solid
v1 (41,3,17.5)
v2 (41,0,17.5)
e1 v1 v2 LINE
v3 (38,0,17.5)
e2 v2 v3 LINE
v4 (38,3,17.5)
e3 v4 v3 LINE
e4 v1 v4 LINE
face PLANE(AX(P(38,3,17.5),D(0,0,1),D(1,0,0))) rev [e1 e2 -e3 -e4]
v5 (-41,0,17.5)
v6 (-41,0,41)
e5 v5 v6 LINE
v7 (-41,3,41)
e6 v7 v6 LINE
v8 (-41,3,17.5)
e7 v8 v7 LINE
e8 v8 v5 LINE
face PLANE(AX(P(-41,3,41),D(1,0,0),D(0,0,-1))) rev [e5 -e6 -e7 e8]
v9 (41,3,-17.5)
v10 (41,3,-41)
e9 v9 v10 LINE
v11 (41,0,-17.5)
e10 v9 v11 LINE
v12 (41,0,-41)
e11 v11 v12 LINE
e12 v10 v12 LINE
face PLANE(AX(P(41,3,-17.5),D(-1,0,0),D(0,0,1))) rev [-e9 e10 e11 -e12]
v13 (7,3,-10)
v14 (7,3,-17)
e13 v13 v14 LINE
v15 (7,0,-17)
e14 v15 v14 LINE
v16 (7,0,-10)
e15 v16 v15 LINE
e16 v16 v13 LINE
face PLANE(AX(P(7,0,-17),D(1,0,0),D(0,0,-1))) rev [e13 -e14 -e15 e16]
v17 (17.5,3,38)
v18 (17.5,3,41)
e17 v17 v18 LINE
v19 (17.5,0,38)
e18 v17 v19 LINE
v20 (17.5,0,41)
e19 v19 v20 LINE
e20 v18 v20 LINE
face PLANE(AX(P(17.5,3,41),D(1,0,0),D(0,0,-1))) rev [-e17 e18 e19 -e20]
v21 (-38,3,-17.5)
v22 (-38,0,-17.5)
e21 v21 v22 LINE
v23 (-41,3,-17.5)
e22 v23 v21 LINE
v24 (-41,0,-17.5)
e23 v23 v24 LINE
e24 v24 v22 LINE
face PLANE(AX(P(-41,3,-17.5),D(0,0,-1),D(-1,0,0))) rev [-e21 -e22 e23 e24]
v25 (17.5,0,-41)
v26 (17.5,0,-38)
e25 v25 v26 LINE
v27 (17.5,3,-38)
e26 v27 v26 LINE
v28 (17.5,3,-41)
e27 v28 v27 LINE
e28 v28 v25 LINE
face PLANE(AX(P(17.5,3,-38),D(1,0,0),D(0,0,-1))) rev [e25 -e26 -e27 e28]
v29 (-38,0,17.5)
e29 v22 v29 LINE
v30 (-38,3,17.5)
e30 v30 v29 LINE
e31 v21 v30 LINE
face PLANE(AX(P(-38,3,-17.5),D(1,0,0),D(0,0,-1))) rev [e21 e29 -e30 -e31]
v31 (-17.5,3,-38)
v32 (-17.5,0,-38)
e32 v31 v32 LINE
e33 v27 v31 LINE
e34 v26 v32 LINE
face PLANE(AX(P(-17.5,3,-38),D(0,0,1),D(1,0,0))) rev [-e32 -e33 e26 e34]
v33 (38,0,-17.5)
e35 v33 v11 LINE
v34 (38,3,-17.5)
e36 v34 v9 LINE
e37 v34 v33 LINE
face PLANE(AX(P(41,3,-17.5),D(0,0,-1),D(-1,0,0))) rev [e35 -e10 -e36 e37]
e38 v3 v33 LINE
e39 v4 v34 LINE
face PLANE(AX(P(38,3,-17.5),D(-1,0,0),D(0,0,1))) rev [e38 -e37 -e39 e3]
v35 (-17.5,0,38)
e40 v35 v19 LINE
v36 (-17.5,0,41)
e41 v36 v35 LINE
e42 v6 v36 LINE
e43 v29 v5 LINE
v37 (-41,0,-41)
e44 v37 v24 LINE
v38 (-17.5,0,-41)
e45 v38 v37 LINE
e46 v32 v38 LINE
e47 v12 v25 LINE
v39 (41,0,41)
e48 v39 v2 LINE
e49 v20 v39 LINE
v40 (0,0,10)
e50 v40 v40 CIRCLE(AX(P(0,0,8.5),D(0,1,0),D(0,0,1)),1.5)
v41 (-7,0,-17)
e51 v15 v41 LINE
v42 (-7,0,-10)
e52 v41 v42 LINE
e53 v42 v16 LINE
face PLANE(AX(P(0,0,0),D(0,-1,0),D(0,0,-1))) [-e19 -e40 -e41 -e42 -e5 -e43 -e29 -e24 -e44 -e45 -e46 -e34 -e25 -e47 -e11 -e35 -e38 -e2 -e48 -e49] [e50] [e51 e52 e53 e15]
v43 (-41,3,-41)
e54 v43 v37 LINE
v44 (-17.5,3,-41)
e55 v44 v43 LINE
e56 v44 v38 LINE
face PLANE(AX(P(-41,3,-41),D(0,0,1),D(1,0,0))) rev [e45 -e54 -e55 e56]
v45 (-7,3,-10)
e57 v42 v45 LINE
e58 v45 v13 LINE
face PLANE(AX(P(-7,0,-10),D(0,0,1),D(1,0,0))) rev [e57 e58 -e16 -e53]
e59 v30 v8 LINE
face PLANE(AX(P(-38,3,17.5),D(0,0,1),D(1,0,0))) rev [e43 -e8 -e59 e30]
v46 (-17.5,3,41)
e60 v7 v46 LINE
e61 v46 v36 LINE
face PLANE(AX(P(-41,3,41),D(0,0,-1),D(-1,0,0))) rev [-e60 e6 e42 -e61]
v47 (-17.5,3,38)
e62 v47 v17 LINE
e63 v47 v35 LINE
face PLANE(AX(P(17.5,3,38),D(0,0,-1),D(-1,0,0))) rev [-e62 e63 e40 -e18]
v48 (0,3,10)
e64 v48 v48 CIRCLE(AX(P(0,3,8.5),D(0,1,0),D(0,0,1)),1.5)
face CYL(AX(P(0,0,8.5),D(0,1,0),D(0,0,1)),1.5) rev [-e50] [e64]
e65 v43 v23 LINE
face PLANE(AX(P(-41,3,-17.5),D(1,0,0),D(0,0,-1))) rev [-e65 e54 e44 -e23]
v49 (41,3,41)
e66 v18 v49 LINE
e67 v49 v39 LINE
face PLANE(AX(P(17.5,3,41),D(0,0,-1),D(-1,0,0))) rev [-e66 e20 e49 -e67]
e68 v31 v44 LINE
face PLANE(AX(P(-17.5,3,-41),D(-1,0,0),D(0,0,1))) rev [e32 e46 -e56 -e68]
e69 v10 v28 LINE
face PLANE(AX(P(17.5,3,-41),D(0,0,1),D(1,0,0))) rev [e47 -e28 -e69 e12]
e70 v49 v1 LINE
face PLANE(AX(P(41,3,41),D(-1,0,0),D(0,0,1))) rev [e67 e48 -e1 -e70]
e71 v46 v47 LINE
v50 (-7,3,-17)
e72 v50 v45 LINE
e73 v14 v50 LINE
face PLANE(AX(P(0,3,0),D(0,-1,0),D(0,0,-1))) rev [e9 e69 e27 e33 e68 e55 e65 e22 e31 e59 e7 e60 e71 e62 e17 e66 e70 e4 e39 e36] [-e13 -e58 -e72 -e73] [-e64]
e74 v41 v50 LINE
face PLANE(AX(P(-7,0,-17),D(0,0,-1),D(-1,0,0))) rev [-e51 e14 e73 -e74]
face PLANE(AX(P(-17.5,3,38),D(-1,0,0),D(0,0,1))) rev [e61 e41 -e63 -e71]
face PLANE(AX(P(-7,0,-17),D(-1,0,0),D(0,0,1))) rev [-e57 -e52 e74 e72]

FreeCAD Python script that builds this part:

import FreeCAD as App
import Part
import Sketcher
from FreeCAD import Vector
Q = App.Units.Quantity

doc = App.newDocument("Part")
body = doc.addObject("PartDesign::Body", "Body")

# Sketch on XZ plane
sketch1 = body.newObject("Sketcher::SketchObject", "Sketch")
sketch1.AttachmentSupport = (doc.getObject("XZ_Plane"), [""])
sketch1.MapMode = "FlatFace"
sketch1.addGeometry([
    Part.LineSegment(Vector(-41, 41, 0), Vector(-17.5, 41, 0)),  # 0
    Part.LineSegment(Vector(-17.5, 41, 0), Vector(-17.5, 38, 0)),  # 1
    Part.LineSegment(Vector(-17.5, 38, 0), Vector(17.5, 38, 0)),  # 2
    Part.LineSegment(Vector(17.5, 38, 0), Vector(17.5, 41, 0)),  # 3
    Part.LineSegment(Vector(17.5, 41, 0), Vector(41, 41, 0)),  # 4
    Part.LineSegment(Vector(41, 41, 0), Vector(41, 17.5, 0)),  # 5
    Part.LineSegment(Vector(41, 17.5, 0), Vector(38, 17.5, 0)),  # 6
    Part.LineSegment(Vector(38, 17.5, 0), Vector(38, -17.5, 0)),  # 7
    Part.LineSegment(Vector(38, -17.5, 0), Vector(41, -17.5, 0)),  # 8
    Part.LineSegment(Vector(41, -17.5, 0), Vector(41, -41, 0)),  # 9
    Part.LineSegment(Vector(41, -41, 0), Vector(17.5, -41, 0)),  # 10
    Part.LineSegment(Vector(17.5, -41, 0), Vector(17.5, -38, 0)),  # 11
    Part.LineSegment(Vector(17.5, -38, 0), Vector(-17.5, -38, 0)),  # 12
    Part.LineSegment(Vector(-17.5, -38, 0), Vector(-17.5, -41, 0)),  # 13
    Part.LineSegment(Vector(-17.5, -41, 0), Vector(-41, -41, 0)),  # 14
    Part.LineSegment(Vector(-41, -41, 0), Vector(-41, -17.5, 0)),  # 15
    Part.LineSegment(Vector(-41, -17.5, 0), Vector(-38, -17.5, 0)),  # 16
    Part.LineSegment(Vector(-38, -17.5, 0), Vector(-38, 17.5, 0)),  # 17
    Part.LineSegment(Vector(-38, 17.5, 0), Vector(-41, 17.5, 0)),  # 18
    Part.LineSegment(Vector(-41, 17.5, 0), Vector(-41, 41, 0)),  # 19
], False)
sketch1.addConstraint([
    Sketcher.Constraint("Coincident", 0, 2, 1, 1),
    Sketcher.Constraint("Coincident", 1, 2, 2, 1),
    Sketcher.Constraint("Coincident", 2, 2, 3, 1),
    Sketcher.Constraint("Coincident", 3, 2, 4, 1),
    Sketcher.Constraint("Coincident", 4, 2, 5, 1),
    Sketcher.Constraint("Coincident", 5, 2, 6, 1),
    Sketcher.Constraint("Coincident", 6, 2, 7, 1),
    Sketcher.Constraint("Coincident", 7, 2, 8, 1),
    Sketcher.Constraint("Coincident", 8, 2, 9, 1),
    Sketcher.Constraint("Coincident", 9, 2, 10, 1),
    Sketcher.Constraint("Coincident", 10, 2, 11, 1),
    Sketcher.Constraint("Coincident", 11, 2, 12, 1),
    Sketcher.Constraint("Coincident", 12, 2, 13, 1),
    Sketcher.Constraint("Coincident", 13, 2, 14, 1),
    Sketcher.Constraint("Coincident", 14, 2, 15, 1),
    Sketcher.Constraint("Coincident", 15, 2, 16, 1),
    Sketcher.Constraint("Coincident", 16, 2, 17, 1),
    Sketcher.Constraint("Coincident", 17, 2, 18, 1),
    Sketcher.Constraint("Coincident", 18, 2, 19, 1),
    Sketcher.Constraint("Coincident", 19, 2, 0, 1),
    Sketcher.Constraint("Horizontal", 0),
    Sketcher.Constraint("Vertical", 1),
    Sketcher.Constraint("Horizontal", 2),
    Sketcher.Constraint("Vertical", 3),
    Sketcher.Constraint("Horizontal", 4),
    Sketcher.Constraint("Vertical", 5),
    Sketcher.Constraint("Horizontal", 6),
    Sketcher.Constraint("Vertical", 7),
    Sketcher.Constraint("Horizontal", 8),
    Sketcher.Constraint("Vertical", 9),
    Sketcher.Constraint("Horizontal", 10),
    Sketcher.Constraint("Vertical", 11),
    Sketcher.Constraint("Horizontal", 12),
    Sketcher.Constraint("Vertical", 13),
    Sketcher.Constraint("Horizontal", 14),
    Sketcher.Constraint("Vertical", 15),
    Sketcher.Constraint("Horizontal", 16),
    Sketcher.Constraint("Vertical", 17),
    Sketcher.Constraint("Horizontal", 18),
    Sketcher.Constraint("Vertical", 19),
    Sketcher.Constraint("Symmetric", 0, 2, 10, 2, -1, 1),
    Sketcher.Constraint("Symmetric", 2, 2, 12, 2, -1, 1),
    Sketcher.Constraint("Symmetric", 4, 2, 14, 2, -1, 1),
    Sketcher.Constraint("Symmetric", 6, 2, 16, 2, -1, 1),
    Sketcher.Constraint("Symmetric", 8, 2, 18, 2, -1, 1),
    Sketcher.Constraint("Symmetric", 0, 2, 3, 2, -2),
    Sketcher.Constraint("Symmetric", 8, 2, 15, 2, -2),
    Sketcher.Constraint("Equal", 18, 1),
    Sketcher.Constraint("Equal", 14, 5),
    Sketcher.Constraint("Equal", 12, 7),
    Sketcher.Constraint("DistanceX", 2, 1, 2, 2, Q("35 mm")),
    Sketcher.Constraint("DistanceX", 6, 2, 6, 1, Q("3 mm")),
    Sketcher.Constraint("DistanceX", 0, 1, 0, 2, Q("23.5 mm")),
])
pad1 = body.newObject("PartDesign::Pad", "Pad")
pad1.Profile = sketch1
pad1.Length = 3
pad1.Reversed = True

# Sketch on XZ plane
sketch2 = body.newObject("Sketcher::SketchObject", "Sketch001")
sketch2.AttachmentSupport = (doc.getObject("XZ_Plane"), [""])
sketch2.MapMode = "FlatFace"
sketch2.AttachmentOffset = App.Placement(Vector(0, 0, -3), App.Rotation())
sketch2.addGeometry([
    Part.Circle(Vector(0, 8.5, 0), Vector(0, 0, 1), 1.5),  # 0
    Part.LineSegment(Vector(-7, -17, 0), Vector(-7, -10, 0)),  # 1
    Part.LineSegment(Vector(-7, -10, 0), Vector(7, -10, 0)),  # 2
    Part.LineSegment(Vector(7, -10, 0), Vector(7, -17, 0)),  # 3
    Part.LineSegment(Vector(7, -17, 0), Vector(-7, -17, 0)),  # 4
], False)
sketch2.addConstraint([
    Sketcher.Constraint("Coincident", 1, 2, 2, 1),
    Sketcher.Constraint("Coincident", 2, 2, 3, 1),
    Sketcher.Constraint("Coincident", 3, 2, 4, 1),
    Sketcher.Constraint("Coincident", 4, 2, 1, 1),
    Sketcher.Constraint("Vertical", 1),
    Sketcher.Constraint("Horizontal", 2),
    Sketcher.Constraint("Vertical", 3),
    Sketcher.Constraint("Horizontal", 4),
    Sketcher.Constraint("PointOnObject", 0, 3, -2),
    Sketcher.Constraint("Diameter", 0, Q("3 mm")),
    Sketcher.Constraint("DistanceX", 2, 1, 2, 2, Q("14 mm")),
    Sketcher.Constraint("DistanceY", 1, 1, 1, 2, Q("7 mm")),
    Sketcher.Constraint("DistanceX", 1, 2, -1, 1, Q("7 mm")),
    Sketcher.Constraint("DistanceY", 1, 2, -1, 1, Q("10 mm")),
    Sketcher.Constraint("DistanceY", -1, 1, 0, 3, Q("8.5 mm")),
])
pocket1 = body.newObject("PartDesign::Pocket", "Pocket")
pocket1.Profile = sketch2
pocket1.Length = 3
pocket1.Reversed = True

doc.recompute()
